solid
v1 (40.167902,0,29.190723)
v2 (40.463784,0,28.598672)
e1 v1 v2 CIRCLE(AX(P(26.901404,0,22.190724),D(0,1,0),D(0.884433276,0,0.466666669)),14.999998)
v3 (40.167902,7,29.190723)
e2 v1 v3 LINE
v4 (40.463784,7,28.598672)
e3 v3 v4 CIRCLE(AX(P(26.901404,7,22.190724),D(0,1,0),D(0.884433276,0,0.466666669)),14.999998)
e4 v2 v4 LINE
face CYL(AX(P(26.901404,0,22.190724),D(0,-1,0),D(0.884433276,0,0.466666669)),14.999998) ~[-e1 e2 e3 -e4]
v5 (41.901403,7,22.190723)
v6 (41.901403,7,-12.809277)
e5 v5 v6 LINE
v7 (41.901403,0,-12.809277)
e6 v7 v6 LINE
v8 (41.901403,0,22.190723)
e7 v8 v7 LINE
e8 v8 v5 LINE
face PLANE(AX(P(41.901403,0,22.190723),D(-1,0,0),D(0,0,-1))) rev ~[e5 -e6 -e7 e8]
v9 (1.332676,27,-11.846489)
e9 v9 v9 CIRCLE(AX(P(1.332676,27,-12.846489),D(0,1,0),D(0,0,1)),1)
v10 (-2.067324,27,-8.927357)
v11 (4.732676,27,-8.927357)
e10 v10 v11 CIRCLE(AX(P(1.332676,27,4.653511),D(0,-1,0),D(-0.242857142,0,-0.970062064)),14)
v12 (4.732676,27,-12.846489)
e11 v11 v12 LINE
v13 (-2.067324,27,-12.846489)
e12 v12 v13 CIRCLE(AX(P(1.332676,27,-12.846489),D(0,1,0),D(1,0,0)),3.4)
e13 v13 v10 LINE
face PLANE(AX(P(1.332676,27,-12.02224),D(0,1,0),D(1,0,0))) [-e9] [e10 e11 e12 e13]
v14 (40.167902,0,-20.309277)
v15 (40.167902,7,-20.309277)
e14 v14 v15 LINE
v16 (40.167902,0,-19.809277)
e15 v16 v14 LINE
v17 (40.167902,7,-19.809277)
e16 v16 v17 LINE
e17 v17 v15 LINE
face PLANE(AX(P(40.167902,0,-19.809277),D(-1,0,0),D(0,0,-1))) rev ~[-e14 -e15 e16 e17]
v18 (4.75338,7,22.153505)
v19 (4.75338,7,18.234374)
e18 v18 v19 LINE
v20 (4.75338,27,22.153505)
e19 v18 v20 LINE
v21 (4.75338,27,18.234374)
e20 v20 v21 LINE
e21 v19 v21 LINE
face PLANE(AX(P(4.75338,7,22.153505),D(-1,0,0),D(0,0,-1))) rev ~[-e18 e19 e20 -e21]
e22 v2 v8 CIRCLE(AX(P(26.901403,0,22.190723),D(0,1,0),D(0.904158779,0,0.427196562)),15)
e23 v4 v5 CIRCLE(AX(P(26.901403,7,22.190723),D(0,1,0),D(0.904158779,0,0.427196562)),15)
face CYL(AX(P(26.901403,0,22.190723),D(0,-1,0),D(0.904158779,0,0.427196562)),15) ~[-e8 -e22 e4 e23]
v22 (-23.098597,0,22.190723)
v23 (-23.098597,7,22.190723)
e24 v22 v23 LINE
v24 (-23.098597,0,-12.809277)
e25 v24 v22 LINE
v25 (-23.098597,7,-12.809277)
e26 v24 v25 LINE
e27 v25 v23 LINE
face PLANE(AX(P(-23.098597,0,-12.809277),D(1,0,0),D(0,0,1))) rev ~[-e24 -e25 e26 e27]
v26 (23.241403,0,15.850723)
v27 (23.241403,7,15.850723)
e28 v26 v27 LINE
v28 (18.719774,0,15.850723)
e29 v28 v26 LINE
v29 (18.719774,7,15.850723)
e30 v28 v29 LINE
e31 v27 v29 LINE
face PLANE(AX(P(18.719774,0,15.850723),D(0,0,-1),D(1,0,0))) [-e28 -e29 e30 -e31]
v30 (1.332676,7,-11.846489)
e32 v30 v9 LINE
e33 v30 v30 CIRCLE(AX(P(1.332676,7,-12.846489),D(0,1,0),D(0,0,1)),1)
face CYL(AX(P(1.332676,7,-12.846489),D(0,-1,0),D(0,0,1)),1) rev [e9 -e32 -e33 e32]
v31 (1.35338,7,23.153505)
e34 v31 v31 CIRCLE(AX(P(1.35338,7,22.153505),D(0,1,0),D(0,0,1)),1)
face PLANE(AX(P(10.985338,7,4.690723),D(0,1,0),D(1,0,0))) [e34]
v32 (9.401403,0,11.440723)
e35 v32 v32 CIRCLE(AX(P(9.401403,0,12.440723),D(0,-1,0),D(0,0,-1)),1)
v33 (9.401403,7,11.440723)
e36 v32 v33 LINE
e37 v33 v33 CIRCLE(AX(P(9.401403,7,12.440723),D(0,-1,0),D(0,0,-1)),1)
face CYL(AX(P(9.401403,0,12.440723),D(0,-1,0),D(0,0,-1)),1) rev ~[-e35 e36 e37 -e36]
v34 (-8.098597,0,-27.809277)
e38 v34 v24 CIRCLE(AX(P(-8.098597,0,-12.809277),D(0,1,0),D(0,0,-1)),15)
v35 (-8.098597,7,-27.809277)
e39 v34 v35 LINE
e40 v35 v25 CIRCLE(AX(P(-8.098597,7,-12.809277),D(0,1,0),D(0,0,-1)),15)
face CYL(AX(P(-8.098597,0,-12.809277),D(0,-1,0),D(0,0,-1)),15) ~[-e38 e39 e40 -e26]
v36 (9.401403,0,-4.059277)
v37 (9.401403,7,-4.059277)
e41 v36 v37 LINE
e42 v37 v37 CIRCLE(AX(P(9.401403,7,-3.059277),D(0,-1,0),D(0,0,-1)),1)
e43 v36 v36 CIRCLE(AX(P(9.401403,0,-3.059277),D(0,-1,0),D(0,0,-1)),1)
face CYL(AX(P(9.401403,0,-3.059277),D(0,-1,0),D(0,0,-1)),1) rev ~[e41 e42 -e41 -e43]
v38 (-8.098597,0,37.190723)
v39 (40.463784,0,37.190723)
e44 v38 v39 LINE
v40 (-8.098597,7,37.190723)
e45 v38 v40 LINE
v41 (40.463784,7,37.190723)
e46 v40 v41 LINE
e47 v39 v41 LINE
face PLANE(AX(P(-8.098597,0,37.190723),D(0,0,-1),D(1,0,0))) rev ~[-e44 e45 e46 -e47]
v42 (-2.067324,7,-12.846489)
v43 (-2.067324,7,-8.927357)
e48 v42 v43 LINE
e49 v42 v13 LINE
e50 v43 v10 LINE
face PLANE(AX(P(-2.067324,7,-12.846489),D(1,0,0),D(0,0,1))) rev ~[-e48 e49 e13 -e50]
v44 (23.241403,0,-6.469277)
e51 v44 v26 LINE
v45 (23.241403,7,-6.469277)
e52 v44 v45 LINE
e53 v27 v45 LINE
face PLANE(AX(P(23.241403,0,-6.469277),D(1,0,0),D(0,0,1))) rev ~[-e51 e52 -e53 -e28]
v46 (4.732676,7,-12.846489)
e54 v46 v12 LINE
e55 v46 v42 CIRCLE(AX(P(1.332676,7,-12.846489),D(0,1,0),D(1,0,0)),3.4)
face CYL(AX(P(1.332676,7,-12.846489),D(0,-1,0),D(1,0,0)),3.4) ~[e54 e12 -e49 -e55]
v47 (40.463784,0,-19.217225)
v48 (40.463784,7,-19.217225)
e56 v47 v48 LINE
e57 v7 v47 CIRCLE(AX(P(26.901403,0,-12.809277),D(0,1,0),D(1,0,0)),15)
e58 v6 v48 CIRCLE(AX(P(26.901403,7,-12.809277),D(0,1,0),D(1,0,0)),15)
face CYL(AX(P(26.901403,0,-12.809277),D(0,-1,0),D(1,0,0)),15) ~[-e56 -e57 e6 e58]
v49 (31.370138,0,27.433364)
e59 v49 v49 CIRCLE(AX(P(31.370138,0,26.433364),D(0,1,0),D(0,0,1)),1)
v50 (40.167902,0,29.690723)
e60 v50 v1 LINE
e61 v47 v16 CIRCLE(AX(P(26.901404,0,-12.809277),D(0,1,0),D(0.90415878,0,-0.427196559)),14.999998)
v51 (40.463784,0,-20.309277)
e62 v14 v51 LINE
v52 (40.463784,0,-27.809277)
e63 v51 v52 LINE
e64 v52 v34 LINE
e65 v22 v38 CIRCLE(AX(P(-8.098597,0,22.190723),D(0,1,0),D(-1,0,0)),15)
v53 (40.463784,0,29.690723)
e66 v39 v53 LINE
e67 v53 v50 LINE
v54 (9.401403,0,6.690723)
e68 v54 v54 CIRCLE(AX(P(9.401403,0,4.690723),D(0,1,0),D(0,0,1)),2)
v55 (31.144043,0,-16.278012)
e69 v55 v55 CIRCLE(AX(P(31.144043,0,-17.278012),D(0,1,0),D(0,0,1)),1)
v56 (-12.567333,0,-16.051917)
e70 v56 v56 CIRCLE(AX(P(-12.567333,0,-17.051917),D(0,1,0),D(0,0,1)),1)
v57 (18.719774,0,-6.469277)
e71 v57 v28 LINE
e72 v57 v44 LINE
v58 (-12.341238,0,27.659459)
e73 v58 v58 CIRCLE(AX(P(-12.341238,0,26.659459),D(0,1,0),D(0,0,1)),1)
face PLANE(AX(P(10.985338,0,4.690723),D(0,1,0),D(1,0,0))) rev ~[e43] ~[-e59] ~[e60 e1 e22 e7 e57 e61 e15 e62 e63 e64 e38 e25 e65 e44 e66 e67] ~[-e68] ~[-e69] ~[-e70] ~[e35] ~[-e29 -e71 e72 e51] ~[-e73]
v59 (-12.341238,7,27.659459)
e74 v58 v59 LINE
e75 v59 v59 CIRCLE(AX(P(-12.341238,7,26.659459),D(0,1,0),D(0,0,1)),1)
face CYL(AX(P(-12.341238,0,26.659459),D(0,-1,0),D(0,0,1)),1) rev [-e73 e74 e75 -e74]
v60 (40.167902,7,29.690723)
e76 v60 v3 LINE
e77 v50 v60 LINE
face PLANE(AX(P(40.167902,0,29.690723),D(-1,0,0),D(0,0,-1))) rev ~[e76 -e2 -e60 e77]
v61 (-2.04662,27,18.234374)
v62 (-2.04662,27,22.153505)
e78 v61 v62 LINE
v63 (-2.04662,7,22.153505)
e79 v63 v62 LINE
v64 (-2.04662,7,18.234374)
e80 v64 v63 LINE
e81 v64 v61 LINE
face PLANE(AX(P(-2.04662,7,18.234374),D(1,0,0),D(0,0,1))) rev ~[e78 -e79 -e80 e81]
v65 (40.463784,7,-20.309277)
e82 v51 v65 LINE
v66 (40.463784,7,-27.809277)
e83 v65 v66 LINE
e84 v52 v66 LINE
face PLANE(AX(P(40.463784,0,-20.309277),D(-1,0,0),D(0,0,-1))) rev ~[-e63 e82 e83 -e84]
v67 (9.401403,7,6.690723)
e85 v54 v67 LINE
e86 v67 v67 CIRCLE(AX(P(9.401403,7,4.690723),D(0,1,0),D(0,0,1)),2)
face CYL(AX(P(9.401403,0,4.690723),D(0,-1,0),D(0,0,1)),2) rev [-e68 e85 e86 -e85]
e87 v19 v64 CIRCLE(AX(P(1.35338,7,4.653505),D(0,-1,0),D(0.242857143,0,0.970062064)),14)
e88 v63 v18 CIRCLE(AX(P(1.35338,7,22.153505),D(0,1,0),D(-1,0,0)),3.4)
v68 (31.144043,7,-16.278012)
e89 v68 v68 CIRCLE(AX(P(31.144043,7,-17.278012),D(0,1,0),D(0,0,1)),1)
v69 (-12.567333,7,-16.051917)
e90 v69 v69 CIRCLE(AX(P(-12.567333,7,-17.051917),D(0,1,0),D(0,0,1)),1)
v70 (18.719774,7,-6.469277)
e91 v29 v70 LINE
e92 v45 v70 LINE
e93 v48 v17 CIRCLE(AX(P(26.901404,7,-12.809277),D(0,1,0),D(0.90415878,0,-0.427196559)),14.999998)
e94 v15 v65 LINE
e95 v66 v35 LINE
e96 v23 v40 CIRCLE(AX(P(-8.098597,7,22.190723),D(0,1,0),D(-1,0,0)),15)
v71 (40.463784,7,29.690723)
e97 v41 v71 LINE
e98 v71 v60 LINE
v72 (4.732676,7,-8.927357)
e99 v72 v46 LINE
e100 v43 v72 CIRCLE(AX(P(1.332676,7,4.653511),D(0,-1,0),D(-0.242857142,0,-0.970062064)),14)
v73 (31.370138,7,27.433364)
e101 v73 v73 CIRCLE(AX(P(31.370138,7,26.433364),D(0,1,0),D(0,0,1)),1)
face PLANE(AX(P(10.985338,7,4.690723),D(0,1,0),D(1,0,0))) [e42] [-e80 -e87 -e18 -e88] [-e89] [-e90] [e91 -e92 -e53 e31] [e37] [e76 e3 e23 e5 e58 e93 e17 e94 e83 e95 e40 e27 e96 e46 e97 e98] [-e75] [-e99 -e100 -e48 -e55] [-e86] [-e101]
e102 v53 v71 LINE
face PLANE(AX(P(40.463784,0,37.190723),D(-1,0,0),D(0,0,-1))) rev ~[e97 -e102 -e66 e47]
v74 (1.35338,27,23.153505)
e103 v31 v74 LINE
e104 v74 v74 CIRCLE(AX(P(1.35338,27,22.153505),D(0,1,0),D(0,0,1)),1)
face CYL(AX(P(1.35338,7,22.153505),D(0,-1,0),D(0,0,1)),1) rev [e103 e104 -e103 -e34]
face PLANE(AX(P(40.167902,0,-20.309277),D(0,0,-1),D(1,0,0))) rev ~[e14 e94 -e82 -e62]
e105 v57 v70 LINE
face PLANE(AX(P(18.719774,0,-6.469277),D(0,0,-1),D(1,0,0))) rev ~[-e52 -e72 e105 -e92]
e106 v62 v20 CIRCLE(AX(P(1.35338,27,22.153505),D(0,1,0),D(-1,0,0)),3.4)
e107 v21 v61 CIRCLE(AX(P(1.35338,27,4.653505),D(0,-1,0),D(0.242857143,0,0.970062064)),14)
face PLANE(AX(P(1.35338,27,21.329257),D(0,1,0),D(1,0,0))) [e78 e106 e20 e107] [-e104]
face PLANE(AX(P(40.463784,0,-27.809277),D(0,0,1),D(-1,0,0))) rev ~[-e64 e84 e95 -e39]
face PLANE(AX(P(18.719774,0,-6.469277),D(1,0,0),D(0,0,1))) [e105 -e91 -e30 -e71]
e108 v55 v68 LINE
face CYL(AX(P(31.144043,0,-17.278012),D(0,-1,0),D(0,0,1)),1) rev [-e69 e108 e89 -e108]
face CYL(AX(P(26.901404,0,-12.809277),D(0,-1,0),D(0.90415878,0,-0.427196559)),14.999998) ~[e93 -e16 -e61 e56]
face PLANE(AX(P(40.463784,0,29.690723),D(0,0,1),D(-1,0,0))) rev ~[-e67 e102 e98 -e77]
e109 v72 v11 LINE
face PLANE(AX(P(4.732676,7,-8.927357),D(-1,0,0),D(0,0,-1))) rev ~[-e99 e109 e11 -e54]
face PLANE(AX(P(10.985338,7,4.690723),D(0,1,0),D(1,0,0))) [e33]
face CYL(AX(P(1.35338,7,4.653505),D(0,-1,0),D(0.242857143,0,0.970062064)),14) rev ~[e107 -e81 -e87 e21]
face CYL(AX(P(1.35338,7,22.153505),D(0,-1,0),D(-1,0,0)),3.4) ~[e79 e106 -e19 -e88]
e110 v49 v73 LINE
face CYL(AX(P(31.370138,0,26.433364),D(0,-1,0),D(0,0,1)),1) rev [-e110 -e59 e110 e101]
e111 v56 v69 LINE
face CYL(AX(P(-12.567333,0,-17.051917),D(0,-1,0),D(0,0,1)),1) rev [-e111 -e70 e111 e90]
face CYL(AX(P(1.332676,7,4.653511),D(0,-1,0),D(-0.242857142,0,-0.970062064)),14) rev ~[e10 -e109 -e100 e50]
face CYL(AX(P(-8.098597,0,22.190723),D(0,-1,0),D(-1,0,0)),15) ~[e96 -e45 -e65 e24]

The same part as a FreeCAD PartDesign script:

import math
import FreeCAD as App
import Part
import Sketcher

doc = App.newDocument("Part")
body = doc.addObject("PartDesign::Body", "Body")

# Sketch on XZ plane
sketch1 = body.newObject("Sketcher::SketchObject", "Sketch")
sketch1.AttachmentSupport = (doc.getObject("XZ_Plane"), [""])
sketch1.MapMode = "FlatFace"
sketch1.addGeometry([
    Part.LineSegment(App.Vector(-23.1, -12.81, 0), App.Vector(-23.1, 22.19, 0)),  # 0
    Part.ArcOfCircle(Part.Circle(App.Vector(-8.1, 22.19, 0), App.Vector(0, 0, 1), 15), math.radians(90), math.radians(180)),  # 1
    Part.LineSegment(App.Vector(-8.1, 37.19, 0), App.Vector(40.46, 37.19, 0)),  # 2
    Part.LineSegment(App.Vector(40.46, 37.19, 0), App.Vector(40.46, 29.69, 0)),  # 3
    Part.LineSegment(App.Vector(40.46, 29.69, 0), App.Vector(40.17, 29.69, 0)),  # 4
    Part.LineSegment(App.Vector(40.17, 29.69, 0), App.Vector(40.17, 29.19, 0)),  # 5
    Part.ArcOfCircle(Part.Circle(App.Vector(26.9, 22.19, 0), App.Vector(0, 0, 1), 15), math.radians(25.29), math.radians(27.82)),  # 6
    Part.ArcOfCircle(Part.Circle(App.Vector(26.9, 22.19, 0), App.Vector(0, 0, 1), 15), math.radians(0), math.radians(25)),  # 7
    Part.LineSegment(App.Vector(41.9, 22.19, 0), App.Vector(41.9, -12.81, 0)),  # 8
    Part.ArcOfCircle(Part.Circle(App.Vector(26.9, -12.81, 0), App.Vector(0, 0, 1), 15), math.radians(-25), math.radians(0)),  # 9
    Part.ArcOfCircle(Part.Circle(App.Vector(26.9, -12.81, 0), App.Vector(0, 0, 1), 15), math.radians(-27.82), math.radians(-25.29)),  # 10
    Part.LineSegment(App.Vector(40.17, -19.81, 0), App.Vector(40.17, -20.31, 0)),  # 11
    Part.LineSegment(App.Vector(40.17, -20.31, 0), App.Vector(40.46, -20.31, 0)),  # 12
    Part.LineSegment(App.Vector(40.46, -20.31, 0), App.Vector(40.46, -27.81, 0)),  # 13
    Part.LineSegment(App.Vector(40.46, -27.81, 0), App.Vector(-8.1, -27.81, 0)),  # 14
    Part.ArcOfCircle(Part.Circle(App.Vector(-8.1, -12.81, 0), App.Vector(0, 0, 1), 15), math.radians(180), math.radians(270)),  # 15
    Part.Circle(App.Vector(-12.34, 26.66, 0), App.Vector(0, 0, 1), 1),  # 16
    Part.Circle(App.Vector(31.37, 26.43, 0), App.Vector(0, 0, 1), 1),  # 17
    Part.Circle(App.Vector(-12.57, -17.05, 0), App.Vector(0, 0, 1), 1),  # 18
    Part.Circle(App.Vector(9.4, 4.69, 0), App.Vector(0, 0, 1), 2),  # 19
    Part.Circle(App.Vector(31.14, -17.28, 0), App.Vector(0, 0, 1), 1),  # 20
], False)
sketch1.addConstraint([
    Sketcher.Constraint("Tangent", 0, 2, 1, 2),
    Sketcher.Constraint("Tangent", 1, 1, 2, 1),
    Sketcher.Constraint("Coincident", 2, 2, 3, 1),
    Sketcher.Constraint("Coincident", 3, 2, 4, 1),
    Sketcher.Constraint("Coincident", 4, 2, 5, 1),
    Sketcher.Constraint("Coincident", 5, 2, 6, 2),
    Sketcher.Constraint("Tangent", 6, 1, 7, 2),
    Sketcher.Constraint("Tangent", 7, 1, 8, 1),
    Sketcher.Constraint("Tangent", 8, 2, 9, 2),
    Sketcher.Constraint("Tangent", 9, 1, 10, 2),
    Sketcher.Constraint("Coincident", 10, 1, 11, 1),
    Sketcher.Constraint("Coincident", 11, 2, 12, 1),
    Sketcher.Constraint("Coincident", 12, 2, 13, 1),
    Sketcher.Constraint("Coincident", 13, 2, 14, 1),
    Sketcher.Constraint("Tangent", 14, 2, 15, 2),
    Sketcher.Constraint("Tangent", 15, 1, 0, 1),
    Sketcher.Constraint("Vertical", 0),
    Sketcher.Constraint("Horizontal", 2),
    Sketcher.Constraint("Vertical", 3),
    Sketcher.Constraint("Horizontal", 4),
    Sketcher.Constraint("Vertical", 5),
    Sketcher.Constraint("Vertical", 8),
    Sketcher.Constraint("Vertical", 11),
    Sketcher.Constraint("Horizontal", 12),
    Sketcher.Constraint("Vertical", 13),
    Sketcher.Constraint("Horizontal", 14),
    Sketcher.Constraint("Equal", 1, 6),
    Sketcher.Constraint("Equal", 6, 7),
    Sketcher.Constraint("Equal", 7, 9),
    Sketcher.Constraint("Equal", 9, 10),
    Sketcher.Constraint("Equal", 10, 15),
    Sketcher.Constraint("Equal", 16, 17),
    Sketcher.Constraint("Equal", 17, 18),
    Sketcher.Constraint("Equal", 18, 20),
    Sketcher.Constraint("Horizontal", 1, 3, 6, 3),
    Sketcher.Constraint("Horizontal", 10, 3, 15, 3),
    Sketcher.Constraint("Vertical", 3, 2, 6, 1),
    Sketcher.Constraint("Vertical", 6, 1, 9, 1),
    Sketcher.Constraint("Vertical", 5, 2, 10, 1),
    Sketcher.Constraint("Vertical", 9, 1, 12, 2),
    Sketcher.Constraint("Equal", 5, 11),
    Sketcher.Constraint("Diameter", 16, 2.0),
    Sketcher.Constraint("Diameter", 19, 4.0),
    Sketcher.Constraint("Radius", 1, 15.0),
    Sketcher.Constraint("DistanceY", 0, 1, 0, 2, 35.0),
    Sketcher.Constraint("DistanceY", 3, 2, 3, 1, 7.5),
    Sketcher.Constraint("DistanceY", 5, 2, 5, 1, 0.5),
    Sketcher.Constraint("DistanceX", 1, 3, 6, 3, 35.000002),
    Sketcher.Constraint("DistanceY", 19, 3, 3, 2, 25.0),
    Sketcher.Constraint("DistanceX", 1, 3, 19, 3, 17.5),
    Sketcher.Constraint("DistanceX", 2, 1, 2, 2, 48.562382),
    Sketcher.Constraint("DistanceX", -1, 1, 4, 2, 40.167902),
    Sketcher.Constraint("DistanceX", 16, 3, -1, 1, 12.341238),
    Sketcher.Constraint("DistanceY", -1, 1, 16, 3, 26.659459),
    Sketcher.Constraint("DistanceY", 20, 3, -1, 1, 17.278012),
    Sketcher.Constraint("DistanceY", -1, 1, 6, 1, 28.598672),
    Sketcher.Constraint("DistanceY", 6, 3, 17, 3, 4.24264),
    Sketcher.Constraint("DistanceY", 18, 3, 15, 3, 4.242641),
    Sketcher.Constraint("DistanceX", 10, 3, 20, 3, 4.242639),
    Sketcher.Constraint("DistanceX", -1, 1, 17, 3, 31.370138),
    Sketcher.Constraint("DistanceX", 18, 3, -1, 1, 12.567333),
])
pad1 = body.newObject("PartDesign::Pad", "Pad")
pad1.Profile = sketch1
pad1.Length = 7
pad1.Reversed = True

# Sketch on XZ plane
sketch2 = body.newObject("Sketcher::SketchObject", "Sketch001")
sketch2.AttachmentSupport = (doc.getObject("XZ_Plane"), [""])
sketch2.MapMode = "FlatFace"
sketch2.AttachmentOffset = App.Placement(App.Vector(0, 0, -7), App.Rotation())
sketch2.addGeometry([
    Part.LineSegment(App.Vector(-2, 18.2, 0), App.Vector(-2, 22.2, 0)),  # 0
    Part.ArcOfCircle(Part.Circle(App.Vector(1.4, 22.2, 0), App.Vector(0, 0, 1), 3.4), math.radians(0), math.radians(180)),  # 1
    Part.LineSegment(App.Vector(4.8, 22.2, 0), App.Vector(4.8, 18.2, 0)),  # 2
    Part.ArcOfCircle(Part.Circle(App.Vector(1.4, 4.7, 0), App.Vector(0, 0, 1), 14), math.radians(76), math.radians(104)),  # 3
    Part.Circle(App.Vector(1.4, 22.2, 0), App.Vector(0, 0, 1), 1),  # 4
    Part.LineSegment(App.Vector(4.7, -8.9, 0), App.Vector(4.7, -12.8, 0)),  # 5
    Part.ArcOfCircle(Part.Circle(App.Vector(1.3, -12.8, 0), App.Vector(0, 0, 1), 3.4), math.radians(180), math.radians(360)),  # 6
    Part.LineSegment(App.Vector(-2.1, -12.8, 0), App.Vector(-2.1, -8.9, 0)),  # 7
    Part.ArcOfCircle(Part.Circle(App.Vector(1.3, 4.7, 0), App.Vector(0, 0, 1), 14), math.radians(-104), math.radians(-76)),  # 8
    Part.Circle(App.Vector(1.3, -12.8, 0), App.Vector(0, 0, 1), 1),  # 9
], False)
sketch2.addConstraint([
    Sketcher.Constraint("Tangent", 0, 2, 1, 2),
    Sketcher.Constraint("Tangent", 1, 1, 2, 1),
    Sketcher.Constraint("Coincident", 2, 2, 3, 1),
    Sketcher.Constraint("Coincident", 3, 2, 0, 1),
    Sketcher.Constraint("Tangent", 5, 2, 6, 2),
    Sketcher.Constraint("Tangent", 6, 1, 7, 1),
    Sketcher.Constraint("Coincident", 7, 2, 8, 1),
    Sketcher.Constraint("Coincident", 8, 2, 5, 1),
    Sketcher.Constraint("Vertical", 0),
    Sketcher.Constraint("Vertical", 2),
    Sketcher.Constraint("Vertical", 5),
    Sketcher.Constraint("Vertical", 7),
    Sketcher.Constraint("Coincident", 4, 3, 1, 3),
    Sketcher.Constraint("Coincident", 9, 3, 6, 3),
    Sketcher.Constraint("Equal", 1, 6),
    Sketcher.Constraint("Equal", 3, 8),
    Sketcher.Constraint("Equal", 4, 9),
    Sketcher.Constraint("Horizontal", 2, 2, 3, 2),
    Sketcher.Constraint("Horizontal", 7, 2, 8, 2),
    Sketcher.Constraint("Equal", 2, 5),
    Sketcher.Constraint("Diameter", 4, 2.0),
    Sketcher.Constraint("Radius", 3, 14.0),
    Sketcher.Constraint("Radius", 1, 3.4),
    Sketcher.Constraint("DistanceY", 3, 3, 1, 3, 17.5),
    Sketcher.Constraint("DistanceX", -1, 1, 1, 3, 1.35338),
    Sketcher.Constraint("DistanceY", 6, 3, -1, 1, 12.846489),
    Sketcher.Constraint("DistanceY", -1, 1, 1, 3, 22.153505),
    Sketcher.Constraint("DistanceX", -1, 1, 6, 3, 1.332676),
])
pad2 = body.newObject("PartDesign::Pad", "Pad001")
pad2.Profile = sketch2
pad2.Length = 20
pad2.Reversed = True

# Sketch on XZ plane
sketch3 = body.newObject("Sketcher::SketchObject", "Sketch002")
sketch3.AttachmentSupport = (doc.getObject("XZ_Plane"), [""])
sketch3.MapMode = "FlatFace"
sketch3.addGeometry([
    Part.Circle(App.Vector(9.4, -3.1, 0), App.Vector(0, 0, 1), 1),  # 0
    Part.Circle(App.Vector(9.4, 12.4, 0), App.Vector(0, 0, 1), 1),  # 1
    Part.LineSegment(App.Vector(18.7, 15.9, 0), App.Vector(18.7, -6.5, 0)),  # 2
    Part.LineSegment(App.Vector(18.7, -6.5, 0), App.Vector(23.2, -6.5, 0)),  # 3
    Part.LineSegment(App.Vector(23.2, -6.5, 0), App.Vector(23.2, 15.9, 0)),  # 4
    Part.LineSegment(App.Vector(23.2, 15.9, 0), App.Vector(18.7, 15.9, 0)),  # 5
], False)
sketch3.addConstraint([
    Sketcher.Constraint("Coincident", 2, 2, 3, 1),
    Sketcher.Constraint("Coincident", 3, 2, 4, 1),
    Sketcher.Constraint("Coincident", 4, 2, 5, 1),
    Sketcher.Constraint("Coincident", 5, 2, 2, 1),
    Sketcher.Constraint("Vertical", 2),
    Sketcher.Constraint("Horizontal", 3),
    Sketcher.Constraint("Vertical", 4),
    Sketcher.Constraint("Horizontal", 5),
    Sketcher.Constraint("Equal", 0, 1),
    Sketcher.Constraint("Vertical", 0, 3, 1, 3),
    Sketcher.Constraint("Diameter", 0, 2.0),
    Sketcher.Constraint("DistanceY", 2, 2, 2, 1, 22.32),
    Sketcher.Constraint("DistanceY", 0, 3, 1, 3, 15.5),
    Sketcher.Constraint("DistanceY", 2, 2, 0, 3, 3.41),
    Sketcher.Constraint("DistanceX", 0, 3, 3, 2, 13.84),
    Sketcher.Constraint("DistanceX", 3, 1, 3, 2, 4.521629),
    Sketcher.Constraint("DistanceX", -1, 1, 0, 3, 9.401403),
    Sketcher.Constraint("DistanceY", 0, 3, -1, 1, 3.059277),
])
pocket1 = body.newObject("PartDesign::Pocket", "Pocket")
pocket1.Profile = sketch3
pocket1.Length = 10

doc.recompute()
